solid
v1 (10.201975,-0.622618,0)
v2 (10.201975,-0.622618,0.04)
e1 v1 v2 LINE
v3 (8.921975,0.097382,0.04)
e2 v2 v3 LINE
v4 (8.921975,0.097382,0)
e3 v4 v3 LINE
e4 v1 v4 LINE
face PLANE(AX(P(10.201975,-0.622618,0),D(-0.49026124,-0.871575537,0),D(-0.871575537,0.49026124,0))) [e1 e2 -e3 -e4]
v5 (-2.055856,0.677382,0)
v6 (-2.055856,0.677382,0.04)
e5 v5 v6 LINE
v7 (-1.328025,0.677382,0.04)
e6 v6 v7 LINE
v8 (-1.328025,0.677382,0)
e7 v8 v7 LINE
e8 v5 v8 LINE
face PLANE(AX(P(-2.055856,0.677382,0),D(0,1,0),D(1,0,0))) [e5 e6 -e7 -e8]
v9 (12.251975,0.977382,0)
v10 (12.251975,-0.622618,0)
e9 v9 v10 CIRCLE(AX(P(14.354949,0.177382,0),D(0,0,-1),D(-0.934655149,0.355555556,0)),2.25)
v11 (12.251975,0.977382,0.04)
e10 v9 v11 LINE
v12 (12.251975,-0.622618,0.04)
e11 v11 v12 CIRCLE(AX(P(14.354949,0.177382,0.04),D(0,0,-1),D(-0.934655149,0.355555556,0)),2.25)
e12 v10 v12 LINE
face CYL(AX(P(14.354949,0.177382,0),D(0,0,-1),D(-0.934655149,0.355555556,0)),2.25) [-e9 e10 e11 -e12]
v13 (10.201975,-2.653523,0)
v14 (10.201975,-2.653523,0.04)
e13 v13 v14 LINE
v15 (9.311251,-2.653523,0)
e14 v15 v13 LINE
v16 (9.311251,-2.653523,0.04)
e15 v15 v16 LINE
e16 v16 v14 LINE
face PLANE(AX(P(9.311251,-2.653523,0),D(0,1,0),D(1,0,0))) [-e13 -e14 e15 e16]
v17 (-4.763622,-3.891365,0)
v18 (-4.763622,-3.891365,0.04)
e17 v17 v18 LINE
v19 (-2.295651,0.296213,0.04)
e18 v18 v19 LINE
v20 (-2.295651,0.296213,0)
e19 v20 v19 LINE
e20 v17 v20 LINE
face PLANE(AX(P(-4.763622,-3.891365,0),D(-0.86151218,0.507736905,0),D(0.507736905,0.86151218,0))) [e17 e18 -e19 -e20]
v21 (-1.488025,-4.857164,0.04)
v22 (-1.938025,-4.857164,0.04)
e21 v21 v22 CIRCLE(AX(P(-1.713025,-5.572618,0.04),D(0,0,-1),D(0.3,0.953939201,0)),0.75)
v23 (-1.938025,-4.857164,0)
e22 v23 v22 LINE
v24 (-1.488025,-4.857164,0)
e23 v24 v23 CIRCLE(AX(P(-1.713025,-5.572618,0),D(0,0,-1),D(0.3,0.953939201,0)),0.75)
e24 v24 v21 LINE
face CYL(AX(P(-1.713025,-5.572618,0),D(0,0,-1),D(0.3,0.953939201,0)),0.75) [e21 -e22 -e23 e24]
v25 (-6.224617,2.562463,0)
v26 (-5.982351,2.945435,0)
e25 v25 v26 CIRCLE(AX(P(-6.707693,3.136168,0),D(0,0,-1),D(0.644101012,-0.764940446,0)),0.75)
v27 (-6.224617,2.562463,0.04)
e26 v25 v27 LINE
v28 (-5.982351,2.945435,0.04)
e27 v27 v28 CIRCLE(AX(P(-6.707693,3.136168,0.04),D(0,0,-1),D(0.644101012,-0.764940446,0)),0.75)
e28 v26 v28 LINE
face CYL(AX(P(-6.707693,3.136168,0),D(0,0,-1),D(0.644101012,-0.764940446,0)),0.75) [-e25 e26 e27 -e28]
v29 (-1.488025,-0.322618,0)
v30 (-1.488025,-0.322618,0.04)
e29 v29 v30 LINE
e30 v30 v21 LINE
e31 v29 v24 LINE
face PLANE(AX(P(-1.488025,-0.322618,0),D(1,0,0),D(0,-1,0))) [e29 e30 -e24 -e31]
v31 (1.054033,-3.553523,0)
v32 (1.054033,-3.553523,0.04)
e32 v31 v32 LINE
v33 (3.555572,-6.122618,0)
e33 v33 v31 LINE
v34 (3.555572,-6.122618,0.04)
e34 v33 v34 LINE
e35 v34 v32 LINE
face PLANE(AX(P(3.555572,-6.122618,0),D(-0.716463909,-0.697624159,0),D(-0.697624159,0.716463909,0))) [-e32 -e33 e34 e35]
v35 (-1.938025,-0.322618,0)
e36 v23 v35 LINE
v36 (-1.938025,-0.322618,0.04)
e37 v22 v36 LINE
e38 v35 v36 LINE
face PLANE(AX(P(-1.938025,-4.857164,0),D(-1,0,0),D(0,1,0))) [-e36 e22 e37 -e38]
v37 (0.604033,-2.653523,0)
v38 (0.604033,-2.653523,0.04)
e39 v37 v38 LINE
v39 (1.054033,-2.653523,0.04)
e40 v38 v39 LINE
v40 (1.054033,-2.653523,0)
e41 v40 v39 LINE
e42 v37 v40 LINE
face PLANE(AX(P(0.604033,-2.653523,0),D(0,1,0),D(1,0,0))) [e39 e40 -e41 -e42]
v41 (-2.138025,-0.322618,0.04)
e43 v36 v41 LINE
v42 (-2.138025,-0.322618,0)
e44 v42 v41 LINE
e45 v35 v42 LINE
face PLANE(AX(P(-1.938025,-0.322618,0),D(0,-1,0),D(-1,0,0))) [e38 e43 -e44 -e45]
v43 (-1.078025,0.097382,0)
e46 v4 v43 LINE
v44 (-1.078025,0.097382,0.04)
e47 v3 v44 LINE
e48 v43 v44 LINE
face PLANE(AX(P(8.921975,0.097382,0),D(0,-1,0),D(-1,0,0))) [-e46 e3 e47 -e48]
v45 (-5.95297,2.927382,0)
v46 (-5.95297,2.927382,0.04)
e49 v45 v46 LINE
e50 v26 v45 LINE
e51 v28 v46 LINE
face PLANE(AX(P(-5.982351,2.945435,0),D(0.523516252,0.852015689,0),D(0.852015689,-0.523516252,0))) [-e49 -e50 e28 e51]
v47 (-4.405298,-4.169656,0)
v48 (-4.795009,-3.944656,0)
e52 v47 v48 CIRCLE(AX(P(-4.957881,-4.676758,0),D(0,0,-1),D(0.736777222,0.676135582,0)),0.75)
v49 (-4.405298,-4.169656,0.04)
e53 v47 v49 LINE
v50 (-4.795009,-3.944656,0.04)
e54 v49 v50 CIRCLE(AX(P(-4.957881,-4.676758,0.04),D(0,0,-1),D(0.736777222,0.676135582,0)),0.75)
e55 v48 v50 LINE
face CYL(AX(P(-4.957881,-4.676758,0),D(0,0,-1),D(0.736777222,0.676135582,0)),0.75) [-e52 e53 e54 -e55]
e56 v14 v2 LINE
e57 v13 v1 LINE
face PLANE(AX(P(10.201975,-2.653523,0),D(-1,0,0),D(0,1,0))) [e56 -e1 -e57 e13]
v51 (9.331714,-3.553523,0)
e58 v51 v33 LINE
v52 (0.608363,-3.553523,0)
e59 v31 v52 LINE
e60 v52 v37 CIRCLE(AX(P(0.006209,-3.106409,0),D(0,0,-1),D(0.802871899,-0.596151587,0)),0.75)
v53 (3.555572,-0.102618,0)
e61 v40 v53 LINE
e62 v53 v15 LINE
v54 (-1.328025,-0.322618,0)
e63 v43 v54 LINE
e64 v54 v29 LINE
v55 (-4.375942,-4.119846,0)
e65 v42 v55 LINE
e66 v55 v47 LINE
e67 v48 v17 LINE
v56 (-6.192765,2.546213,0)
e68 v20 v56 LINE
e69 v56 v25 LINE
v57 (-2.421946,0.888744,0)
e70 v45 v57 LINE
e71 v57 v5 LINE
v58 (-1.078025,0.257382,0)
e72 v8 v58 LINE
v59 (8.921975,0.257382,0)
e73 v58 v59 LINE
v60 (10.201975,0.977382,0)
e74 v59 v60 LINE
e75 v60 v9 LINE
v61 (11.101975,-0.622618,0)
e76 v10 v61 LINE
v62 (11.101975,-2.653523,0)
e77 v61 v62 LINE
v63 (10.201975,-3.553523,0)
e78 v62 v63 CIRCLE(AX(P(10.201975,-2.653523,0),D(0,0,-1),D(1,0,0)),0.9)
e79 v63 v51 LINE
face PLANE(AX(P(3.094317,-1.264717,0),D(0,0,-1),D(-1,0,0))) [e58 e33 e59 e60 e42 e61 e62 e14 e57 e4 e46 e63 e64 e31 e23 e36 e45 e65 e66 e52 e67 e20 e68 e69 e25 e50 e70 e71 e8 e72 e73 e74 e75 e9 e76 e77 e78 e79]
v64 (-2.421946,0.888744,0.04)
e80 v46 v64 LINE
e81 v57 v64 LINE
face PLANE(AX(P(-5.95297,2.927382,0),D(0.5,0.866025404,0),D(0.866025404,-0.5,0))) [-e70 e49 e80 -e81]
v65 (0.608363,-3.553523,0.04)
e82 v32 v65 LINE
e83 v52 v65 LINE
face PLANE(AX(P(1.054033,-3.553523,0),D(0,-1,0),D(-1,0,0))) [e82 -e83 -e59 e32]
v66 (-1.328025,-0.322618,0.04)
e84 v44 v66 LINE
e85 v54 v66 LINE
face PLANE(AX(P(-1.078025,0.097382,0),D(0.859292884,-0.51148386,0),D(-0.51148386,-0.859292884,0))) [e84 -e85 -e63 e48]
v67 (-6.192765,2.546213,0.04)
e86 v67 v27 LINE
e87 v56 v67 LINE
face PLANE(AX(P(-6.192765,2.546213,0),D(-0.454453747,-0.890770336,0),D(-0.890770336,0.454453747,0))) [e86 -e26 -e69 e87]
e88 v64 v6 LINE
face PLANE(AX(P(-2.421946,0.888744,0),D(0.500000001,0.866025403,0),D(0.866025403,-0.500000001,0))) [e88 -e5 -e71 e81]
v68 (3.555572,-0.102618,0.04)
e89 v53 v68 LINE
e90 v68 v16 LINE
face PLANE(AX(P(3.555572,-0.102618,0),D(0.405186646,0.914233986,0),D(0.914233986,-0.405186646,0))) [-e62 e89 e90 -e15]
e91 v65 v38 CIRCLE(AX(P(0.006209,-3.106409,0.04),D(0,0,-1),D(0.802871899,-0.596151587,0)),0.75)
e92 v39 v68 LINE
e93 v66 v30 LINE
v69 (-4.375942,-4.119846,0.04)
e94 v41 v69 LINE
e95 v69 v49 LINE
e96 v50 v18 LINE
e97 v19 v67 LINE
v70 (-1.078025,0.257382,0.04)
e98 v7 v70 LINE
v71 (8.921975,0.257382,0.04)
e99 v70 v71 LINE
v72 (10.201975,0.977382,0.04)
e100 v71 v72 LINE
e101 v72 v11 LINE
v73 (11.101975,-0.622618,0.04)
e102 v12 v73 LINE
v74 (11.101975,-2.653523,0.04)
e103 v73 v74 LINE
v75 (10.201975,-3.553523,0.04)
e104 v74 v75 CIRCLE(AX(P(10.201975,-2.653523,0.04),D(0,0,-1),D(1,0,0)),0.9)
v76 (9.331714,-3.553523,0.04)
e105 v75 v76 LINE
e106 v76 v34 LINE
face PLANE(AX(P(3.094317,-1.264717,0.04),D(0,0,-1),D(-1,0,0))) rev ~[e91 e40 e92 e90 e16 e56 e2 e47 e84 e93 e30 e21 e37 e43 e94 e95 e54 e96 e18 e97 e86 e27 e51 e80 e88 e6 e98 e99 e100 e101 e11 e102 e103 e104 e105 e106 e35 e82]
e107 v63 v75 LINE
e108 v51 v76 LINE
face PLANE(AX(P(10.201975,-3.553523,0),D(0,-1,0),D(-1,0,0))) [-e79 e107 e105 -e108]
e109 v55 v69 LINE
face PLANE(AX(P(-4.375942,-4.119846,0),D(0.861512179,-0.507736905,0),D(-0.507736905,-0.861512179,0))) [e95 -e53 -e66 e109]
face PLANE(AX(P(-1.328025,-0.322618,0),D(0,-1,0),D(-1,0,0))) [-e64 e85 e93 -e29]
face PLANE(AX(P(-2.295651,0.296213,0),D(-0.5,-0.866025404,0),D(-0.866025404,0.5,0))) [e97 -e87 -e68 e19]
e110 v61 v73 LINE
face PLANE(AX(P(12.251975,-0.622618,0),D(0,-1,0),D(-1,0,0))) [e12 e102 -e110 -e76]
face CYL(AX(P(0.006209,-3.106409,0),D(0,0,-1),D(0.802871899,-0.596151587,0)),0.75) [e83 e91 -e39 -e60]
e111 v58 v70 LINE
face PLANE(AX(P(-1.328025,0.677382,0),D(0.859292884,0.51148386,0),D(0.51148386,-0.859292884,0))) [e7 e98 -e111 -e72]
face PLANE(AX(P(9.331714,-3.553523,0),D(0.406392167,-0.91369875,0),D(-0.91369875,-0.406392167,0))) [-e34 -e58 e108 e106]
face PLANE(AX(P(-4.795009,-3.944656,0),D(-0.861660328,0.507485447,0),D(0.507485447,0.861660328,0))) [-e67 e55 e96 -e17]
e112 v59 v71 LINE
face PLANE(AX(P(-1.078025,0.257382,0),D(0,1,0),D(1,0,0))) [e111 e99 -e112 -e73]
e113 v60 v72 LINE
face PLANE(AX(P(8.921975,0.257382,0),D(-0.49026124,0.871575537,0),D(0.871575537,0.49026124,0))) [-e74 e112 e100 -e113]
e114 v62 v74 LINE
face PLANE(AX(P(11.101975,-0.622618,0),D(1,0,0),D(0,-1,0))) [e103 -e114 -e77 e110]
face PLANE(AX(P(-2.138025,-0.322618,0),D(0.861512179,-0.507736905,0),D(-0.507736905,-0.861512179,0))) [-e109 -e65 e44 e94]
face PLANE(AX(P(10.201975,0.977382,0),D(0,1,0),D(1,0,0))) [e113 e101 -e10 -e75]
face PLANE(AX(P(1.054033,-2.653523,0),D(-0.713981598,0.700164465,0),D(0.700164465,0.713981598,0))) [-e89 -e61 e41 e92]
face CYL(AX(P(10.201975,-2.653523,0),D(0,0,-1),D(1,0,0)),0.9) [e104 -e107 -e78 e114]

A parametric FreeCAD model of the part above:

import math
import FreeCAD as App
import Part
import Sketcher
Q = App.Units.Quantity

doc = App.newDocument("Part")
body = doc.addObject("PartDesign::Body", "Body")

# Sketch on XY plane
sketch1 = doc.addObject("Sketcher::SketchObject", "Sketch")
body.addObject(sketch1)
sketch1.AttachmentSupport = (doc.XY_Plane, [""])
sketch1.MapMode = "FlatFace"
sketch1.addGeometry([
    Part.LineSegment(App.Vector(-1.078025, 0.257382, 0), App.Vector(-1.328025, 0.677382, 0)),  # 0
    Part.LineSegment(App.Vector(-1.328025, 0.677382, 0), App.Vector(-2.055856, 0.677382, 0)),  # 1
    Part.LineSegment(App.Vector(-2.055856, 0.677382, 0), App.Vector(-2.421946, 0.888744, 0)),  # 2
    Part.LineSegment(App.Vector(-2.421946, 0.888744, 0), App.Vector(-5.95297, 2.927382, 0)),  # 3
    Part.LineSegment(App.Vector(-5.95297, 2.927382, 0), App.Vector(-5.982351, 2.945435, 0)),  # 4
    Part.ArcOfCircle(Part.Circle(App.Vector(-6.707693, 3.136168, 0), App.Vector(0, 0, 1), 0.75), math.radians(-14.732757), math.radians(310.098306)),  # 5
    Part.LineSegment(App.Vector(-6.224617, 2.562463, 0), App.Vector(-6.192765, 2.546213, 0)),  # 6
    Part.LineSegment(App.Vector(-6.192765, 2.546213, 0), App.Vector(-2.295651, 0.296213, 0)),  # 7
    Part.LineSegment(App.Vector(-2.295651, 0.296213, 0), App.Vector(-4.763622, -3.891365, 0)),  # 8
    Part.LineSegment(App.Vector(-4.763622, -3.891365, 0), App.Vector(-4.795009, -3.944656, 0)),  # 9
    Part.ArcOfCircle(Part.Circle(App.Vector(-4.957881, -4.676758, 0), App.Vector(0, 0, 1), 0.75), math.radians(77.457603), math.radians(402.542397)),  # 10
    Part.LineSegment(App.Vector(-4.405298, -4.169656, 0), App.Vector(-4.375942, -4.119846, 0)),  # 11
    Part.LineSegment(App.Vector(-4.375942, -4.119846, 0), App.Vector(-2.138025, -0.322618, 0)),  # 12
    Part.LineSegment(App.Vector(-2.138025, -0.322618, 0), App.Vector(-1.938025, -0.322618, 0)),  # 13
    Part.LineSegment(App.Vector(-1.938025, -0.322618, 0), App.Vector(-1.938025, -4.857164, 0)),  # 14
    Part.ArcOfCircle(Part.Circle(App.Vector(-1.713025, -5.572618, 0), App.Vector(0, 0, 1), 0.75), math.radians(107.457603), math.radians(432.542397)),  # 15
    Part.LineSegment(App.Vector(-1.488025, -4.857164, 0), App.Vector(-1.488025, -0.322618, 0)),  # 16
    Part.LineSegment(App.Vector(-1.488025, -0.322618, 0), App.Vector(-1.328025, -0.322618, 0)),  # 17
    Part.LineSegment(App.Vector(-1.328025, -0.322618, 0), App.Vector(-1.078025, 0.097382, 0)),  # 18
    Part.LineSegment(App.Vector(-1.078025, 0.097382, 0), App.Vector(8.921975, 0.097382, 0)),  # 19
    Part.LineSegment(App.Vector(8.921975, 0.097382, 0), App.Vector(10.201975, -0.622618, 0)),  # 20
    Part.LineSegment(App.Vector(10.201975, -0.622618, 0), App.Vector(10.201975, -2.653523, 0)),  # 21
    Part.LineSegment(App.Vector(10.201975, -2.653523, 0), App.Vector(9.311251, -2.653523, 0)),  # 22
    Part.LineSegment(App.Vector(9.311251, -2.653523, 0), App.Vector(3.555572, -0.102618, 0)),  # 23
    Part.LineSegment(App.Vector(3.555572, -0.102618, 0), App.Vector(1.054033, -2.653523, 0)),  # 24
    Part.LineSegment(App.Vector(1.054033, -2.653523, 0), App.Vector(0.604033, -2.653523, 0)),  # 25
    Part.ArcOfCircle(Part.Circle(App.Vector(0.006209, -3.106409, 0), App.Vector(0, 0, 1), 0.75), math.radians(37.14602), math.radians(323.40523)),  # 26
    Part.LineSegment(App.Vector(0.608363, -3.553523, 0), App.Vector(1.054033, -3.553523, 0)),  # 27
    Part.LineSegment(App.Vector(1.054033, -3.553523, 0), App.Vector(3.555572, -6.122618, 0)),  # 28
    Part.LineSegment(App.Vector(3.555572, -6.122618, 0), App.Vector(9.331714, -3.553523, 0)),  # 29
    Part.LineSegment(App.Vector(9.331714, -3.553523, 0), App.Vector(10.201975, -3.553523, 0)),  # 30
    Part.ArcOfCircle(Part.Circle(App.Vector(10.201975, -2.653523, 0), App.Vector(0, 0, 1), 0.9), math.radians(-90), math.radians(0)),  # 31
    Part.LineSegment(App.Vector(11.101975, -2.653523, 0), App.Vector(11.101975, -0.622618, 0)),  # 32
    Part.LineSegment(App.Vector(11.101975, -0.622618, 0), App.Vector(12.251975, -0.622618, 0)),  # 33
    Part.ArcOfCircle(Part.Circle(App.Vector(14.354949, 0.177382, 0), App.Vector(0, 0, 1), 2.25), math.radians(-159.172503), math.radians(159.172503)),  # 34
    Part.LineSegment(App.Vector(12.251975, 0.977382, 0), App.Vector(10.201975, 0.977382, 0)),  # 35
    Part.LineSegment(App.Vector(10.201975, 0.977382, 0), App.Vector(8.921975, 0.257382, 0)),  # 36
    Part.LineSegment(App.Vector(8.921975, 0.257382, 0), App.Vector(-1.078025, 0.257382, 0)),  # 37
], False)
sketch1.addConstraint([
    Sketcher.Constraint("Coincident", 0, 2, 1, 1),
    Sketcher.Constraint("Coincident", 1, 2, 2, 1),
    Sketcher.Constraint("Coincident", 2, 2, 3, 1),
    Sketcher.Constraint("Coincident", 3, 2, 4, 1),
    Sketcher.Constraint("Coincident", 4, 2, 5, 1),
    Sketcher.Constraint("Coincident", 5, 2, 6, 1),
    Sketcher.Constraint("Coincident", 6, 2, 7, 1),
    Sketcher.Constraint("Coincident", 7, 2, 8, 1),
    Sketcher.Constraint("Coincident", 8, 2, 9, 1),
    Sketcher.Constraint("Coincident", 9, 2, 10, 1),
    Sketcher.Constraint("Coincident", 10, 2, 11, 1),
    Sketcher.Constraint("Coincident", 11, 2, 12, 1),
    Sketcher.Constraint("Coincident", 12, 2, 13, 1),
    Sketcher.Constraint("Coincident", 13, 2, 14, 1),
    Sketcher.Constraint("Coincident", 14, 2, 15, 1),
    Sketcher.Constraint("Coincident", 15, 2, 16, 1),
    Sketcher.Constraint("Coincident", 16, 2, 17, 1),
    Sketcher.Constraint("Coincident", 17, 2, 18, 1),
    Sketcher.Constraint("Coincident", 18, 2, 19, 1),
    Sketcher.Constraint("Coincident", 19, 2, 20, 1),
    Sketcher.Constraint("Coincident", 20, 2, 21, 1),
    Sketcher.Constraint("Coincident", 21, 2, 22, 1),
    Sketcher.Constraint("Coincident", 22, 2, 23, 1),
    Sketcher.Constraint("Coincident", 23, 2, 24, 1),
    Sketcher.Constraint("Coincident", 24, 2, 25, 1),
    Sketcher.Constraint("Coincident", 25, 2, 26, 1),
    Sketcher.Constraint("Coincident", 26, 2, 27, 1),
    Sketcher.Constraint("Coincident", 27, 2, 28, 1),
    Sketcher.Constraint("Coincident", 28, 2, 29, 1),
    Sketcher.Constraint("Coincident", 29, 2, 30, 1),
    Sketcher.Constraint("Tangent", 30, 2, 31, 1),
    Sketcher.Constraint("Tangent", 31, 2, 32, 1),
    Sketcher.Constraint("Coincident", 32, 2, 33, 1),
    Sketcher.Constraint("Coincident", 33, 2, 34, 1),
    Sketcher.Constraint("Coincident", 34, 2, 35, 1),
    Sketcher.Constraint("Coincident", 35, 2, 36, 1),
    Sketcher.Constraint("Coincident", 36, 2, 37, 1),
    Sketcher.Constraint("Coincident", 37, 2, 0, 1),
    Sketcher.Constraint("Horizontal", 1),
    Sketcher.Constraint("Horizontal", 13),
    Sketcher.Constraint("Vertical", 14),
    Sketcher.Constraint("Vertical", 16),
    Sketcher.Constraint("Horizontal", 17),
    Sketcher.Constraint("Horizontal", 19),
    Sketcher.Constraint("Vertical", 21),
    Sketcher.Constraint("Horizontal", 22),
    Sketcher.Constraint("Horizontal", 25),
    Sketcher.Constraint("Horizontal", 27),
    Sketcher.Constraint("Horizontal", 30),
    Sketcher.Constraint("Vertical", 32),
    Sketcher.Constraint("Horizontal", 33),
    Sketcher.Constraint("Horizontal", 35),
    Sketcher.Constraint("Horizontal", 37),
    Sketcher.Constraint("Coincident", 21, 2, 31, 3),
    Sketcher.Constraint("Equal", 5, 10),
    Sketcher.Constraint("Equal", 10, 15),
    Sketcher.Constraint("Equal", 15, 26),
    Sketcher.Constraint("Parallel", 2, 3),
    Sketcher.Constraint("Parallel", 3, 7),
    Sketcher.Constraint("Parallel", 8, 11),
    Sketcher.Constraint("Parallel", 11, 12),
    Sketcher.Constraint("Horizontal", 14, 2, 15, 2),
    Sketcher.Constraint("Horizontal", 13, 2, 16, 2),
    Sketcher.Constraint("Horizontal", 22, 2, 24, 2),
    Sketcher.Constraint("Horizontal", 27, 2, 29, 2),
    Sketcher.Constraint("Horizontal", 20, 2, 32, 2),
    Sketcher.Constraint("Vertical", 0, 2, 17, 2),
    Sketcher.Constraint("Vertical", 24, 2, 27, 2),
    Sketcher.Constraint("Vertical", 23, 2, 28, 2),
    Sketcher.Constraint("Vertical", 33, 2, 34, 2),
    Sketcher.Constraint("Vertical", 30, 2, 35, 2),
    Sketcher.Constraint("Vertical", 19, 2, 36, 2),
    Sketcher.Constraint("Vertical", 18, 2, 37, 2),
    Sketcher.Constraint("Equal", 0, 18),
    Sketcher.Constraint("Equal", 20, 36),
    Sketcher.Constraint("Radius", 31, Q("0.9 mm")),
    Sketcher.Constraint("DistanceX", 19, 1, 19, 2, Q("10 mm")),
    Sketcher.Constraint("Angle", 2, Q("150 deg")),
    Sketcher.Constraint("Radius", 5, Q("0.75 mm")),
    Sketcher.Constraint("Radius", 34, Q("2.25 mm")),
    Sketcher.Constraint("DistanceX", 13, 1, 13, 2, Q("0.2 mm")),
    Sketcher.Constraint("DistanceY", 12, 2, 1, 2, Q("1 mm")),
    Sketcher.Constraint("Distance", 7, Q("4.5 mm")),
    Sketcher.Constraint("DistanceX", 17, 1, 17, 2, Q("0.16 mm")),
    Sketcher.Constraint("DistanceX", 25, 2, 25, 1, Q("0.45 mm")),
    Sketcher.Constraint("DistanceX", 33, 1, 33, 2, Q("1.15 mm")),
    Sketcher.Constraint("DistanceY", 20, 2, 34, 3, Q("0.8 mm")),
    Sketcher.Constraint("DistanceY", 23, 2, 18, 2, Q("0.2 mm")),
    Sketcher.Constraint("DistanceY", 15, 3, 34, 3, Q("5.75 mm")),
    Sketcher.Constraint("DistanceX", 0, 2, 31, 3, Q("11.53 mm")),
    Sketcher.Constraint("DistanceY", 1, 2, 3, 2, Q("2.25 mm")),
    Sketcher.Constraint("DistanceX", 12, 2, 0, 2, Q("0.81 mm")),
    Sketcher.Constraint("DistanceX", 17, 2, 18, 2, Q("0.25 mm")),
    Sketcher.Constraint("DistanceY", 17, 2, 18, 2, Q("0.42 mm")),
    Sketcher.Constraint("DistanceY", 10, 2, 9, 2, Q("0.225 mm")),
    Sketcher.Constraint("Distance", 28, Q("3.585798 mm")),
    Sketcher.Constraint("DistanceX", 1, 2, 1, 1, Q("0.727831 mm")),
    Sketcher.Constraint("DistanceX", 27, 1, 27, 2, Q("0.44567 mm")),
    Sketcher.Constraint("DistanceX", 30, 1, 30, 2, Q("0.870261 mm")),
    Sketcher.Constraint("DistanceX", 5, 3, 26, 3, Q("6.713901 mm")),
    Sketcher.Constraint("DistanceY", 10, 3, 9, 2, Q("0.732102 mm")),
    Sketcher.Constraint("DistanceY", 14, 2, 8, 2, Q("0.965799 mm")),
    Sketcher.Constraint("DistanceX", 22, 2, 34, 3, Q("5.043698 mm")),
    Sketcher.Constraint("Distance", 8, Q("4.860729 mm")),
    Sketcher.Constraint("Distance", 12, Q("4.407632 mm")),
    Sketcher.Constraint("Distance", 23, Q("6.29563 mm")),
    Sketcher.Constraint("Distance", 24, Q("3.572788 mm")),
    Sketcher.Constraint("DistanceY", 21, 2, 21, 1, Q("2.030905 mm")),
    Sketcher.Constraint("DistanceY", -1, 1, 5, 3, Q("3.136168 mm")),
    Sketcher.Constraint("DistanceX", 10, 3, -1, 1, Q("4.957881 mm")),
    Sketcher.Constraint("DistanceX", -1, 1, 26, 3, Q("0.006209 mm")),
    Sketcher.Constraint("DistanceY", 26, 3, -1, 1, Q("3.106409 mm")),
    Sketcher.Constraint("DistanceX", 4, 2, -1, 1, Q("5.982351 mm")),
    Sketcher.Constraint("DistanceX", 7, 2, -1, 1, Q("2.295651 mm")),
    Sketcher.Constraint("DistanceX", 11, 2, -1, 1, Q("4.375942 mm")),
    Sketcher.Constraint("DistanceX", 2, 2, 1, 2, Q("0.36609 mm")),
    Sketcher.Constraint("DistanceY", 5, 2, 3, 2, Q("0.364919 mm")),
])
pad1 = doc.addObject("PartDesign::Pad", "Pad")
body.addObject(pad1)
pad1.Profile = sketch1
pad1.Length = 0.04

doc.recompute()
